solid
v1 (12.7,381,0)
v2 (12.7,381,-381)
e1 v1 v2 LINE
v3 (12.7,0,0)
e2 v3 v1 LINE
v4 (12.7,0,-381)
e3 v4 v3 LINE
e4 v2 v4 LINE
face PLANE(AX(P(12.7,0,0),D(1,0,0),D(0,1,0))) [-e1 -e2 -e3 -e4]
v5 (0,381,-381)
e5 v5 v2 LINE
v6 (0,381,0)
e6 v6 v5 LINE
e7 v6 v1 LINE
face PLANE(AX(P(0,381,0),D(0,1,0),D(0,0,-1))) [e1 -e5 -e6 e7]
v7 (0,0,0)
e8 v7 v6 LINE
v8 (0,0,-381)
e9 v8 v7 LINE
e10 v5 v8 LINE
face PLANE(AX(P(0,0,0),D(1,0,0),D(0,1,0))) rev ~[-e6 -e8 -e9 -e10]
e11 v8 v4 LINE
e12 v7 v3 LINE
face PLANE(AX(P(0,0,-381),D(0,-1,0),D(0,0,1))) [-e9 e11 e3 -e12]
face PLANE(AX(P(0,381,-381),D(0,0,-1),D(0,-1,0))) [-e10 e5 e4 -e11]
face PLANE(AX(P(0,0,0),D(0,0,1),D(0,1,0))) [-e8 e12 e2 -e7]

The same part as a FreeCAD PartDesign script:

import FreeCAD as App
import Part
import Sketcher
Q = App.Units.Quantity

doc = App.newDocument("Part")
body = doc.addObject("PartDesign::Body", "Body")

# Sketch on YZ plane
sketch1 = doc.addObject("Sketcher::SketchObject", "Sketch")
body.addObject(sketch1)
sketch1.AttachmentSupport = (doc.YZ_Plane, [""])
sketch1.MapMode = "FlatFace"
sketch1.addGeometry([
    Part.LineSegment(App.Vector(381, 0, 0), App.Vector(0, 0, 0)),
    Part.LineSegment(App.Vector(0, 0, 0), App.Vector(0, -381, 0)),
    Part.LineSegment(App.Vector(0, -381, 0), App.Vector(381, -381, 0)),
    Part.LineSegment(App.Vector(381, -381, 0), App.Vector(381, 0, 0)),
], False)
sketch1.addConstraint([
    Sketcher.Constraint("Coincident", 0, 2, 1, 1),
    Sketcher.Constraint("Coincident", 1, 2, 2, 1),
    Sketcher.Constraint("Coincident", 2, 2, 3, 1),
    Sketcher.Constraint("Coincident", 3, 2, 0, 1),
    Sketcher.Constraint("Horizontal", 0),
    Sketcher.Constraint("Vertical", 1),
    Sketcher.Constraint("Horizontal", 2),
    Sketcher.Constraint("Vertical", 3),
    Sketcher.Constraint("Coincident", 0, 2, -1, 1),
    Sketcher.Constraint("Equal", 2, 1),
    Sketcher.Constraint("DistanceX", 0, 2, 0, 1, Q("15 in")),
])
pad1 = doc.addObject("PartDesign::Pad", "Pad")
body.addObject(pad1)
pad1.Profile = sketch1
pad1.Length = Q("0.5 in")

doc.recompute()
